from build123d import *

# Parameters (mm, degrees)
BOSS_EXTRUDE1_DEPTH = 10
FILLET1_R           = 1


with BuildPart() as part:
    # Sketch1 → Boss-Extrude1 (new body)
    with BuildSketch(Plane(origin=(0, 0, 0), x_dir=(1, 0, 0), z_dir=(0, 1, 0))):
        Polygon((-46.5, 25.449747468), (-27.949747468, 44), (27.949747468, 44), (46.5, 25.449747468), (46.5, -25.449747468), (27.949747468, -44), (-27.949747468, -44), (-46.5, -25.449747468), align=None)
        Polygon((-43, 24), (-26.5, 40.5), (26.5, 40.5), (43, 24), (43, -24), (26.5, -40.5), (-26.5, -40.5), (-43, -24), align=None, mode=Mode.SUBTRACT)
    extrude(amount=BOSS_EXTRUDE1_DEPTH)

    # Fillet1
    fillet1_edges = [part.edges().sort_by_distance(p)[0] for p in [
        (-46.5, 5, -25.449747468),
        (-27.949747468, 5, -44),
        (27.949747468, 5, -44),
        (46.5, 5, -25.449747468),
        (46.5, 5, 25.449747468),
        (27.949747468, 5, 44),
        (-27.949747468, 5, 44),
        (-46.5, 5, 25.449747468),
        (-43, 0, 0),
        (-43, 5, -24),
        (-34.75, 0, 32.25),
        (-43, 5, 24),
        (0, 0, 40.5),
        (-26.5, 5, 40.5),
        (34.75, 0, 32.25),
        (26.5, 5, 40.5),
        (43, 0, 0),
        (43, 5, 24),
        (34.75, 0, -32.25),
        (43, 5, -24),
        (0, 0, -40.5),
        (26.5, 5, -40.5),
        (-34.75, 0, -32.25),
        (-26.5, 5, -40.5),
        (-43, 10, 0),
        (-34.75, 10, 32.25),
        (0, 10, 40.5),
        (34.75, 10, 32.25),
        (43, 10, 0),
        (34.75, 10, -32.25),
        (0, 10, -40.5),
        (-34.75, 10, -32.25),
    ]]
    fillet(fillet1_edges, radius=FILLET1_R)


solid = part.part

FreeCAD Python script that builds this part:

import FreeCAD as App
import Part
import Sketcher
Q = App.Units.Quantity


def edges_at(feature, points):
    """Names of the edges that pass closest to the given points."""
    edges = feature.Shape.Edges
    near = lambda p: min(range(len(edges)), key=lambda i: edges[i].distToShape(Part.Vertex(*p))[0])
    return sorted({f"Edge{near(p) + 1}" for p in points})


def add_polygon(sketch, points):
    """Adds a closed chain of lines whose ends are joined by coincident constraints."""
    first, n = sketch.GeometryCount, len(points)
    for a, b in zip(points, points[1:] + points[:1]):
        sketch.addGeometry(Part.LineSegment(App.Vector(*a, 0), App.Vector(*b, 0)), False)
    for i in range(n):
        sketch.addConstraint(Sketcher.Constraint("Coincident", first + i, 2, first + (i + 1) % n, 1))

doc = App.newDocument("Part")
body = doc.addObject("PartDesign::Body", "Body")

sketch1 = doc.addObject("Sketcher::SketchObject", "Sketch")
body.addObject(sketch1)
sketch1.AttachmentSupport = (doc.XZ_Plane, [""])
sketch1.MapMode = "FlatFace"
add_polygon(sketch1, [(-28, -44), (-46, -25), (-46, 25), (-28, 44), (28, 44), (46, 25), (46, -25), (28, -44)])
add_polygon(sketch1, [(-43, -24), (-26, -40), (26, -40), (43, -24), (43, 24), (26, 40), (-26, 40), (-43, 24)])
sketch1.addConstraint(Sketcher.Constraint("Vertical", 1))
sketch1.addConstraint(Sketcher.Constraint("Horizontal", 3))
sketch1.addConstraint(Sketcher.Constraint("Vertical", 5))
sketch1.addConstraint(Sketcher.Constraint("Horizontal", 7))
sketch1.addConstraint(Sketcher.Constraint("Horizontal", 9))
sketch1.addConstraint(Sketcher.Constraint("Vertical", 11))
sketch1.addConstraint(Sketcher.Constraint("Horizontal", 13))
sketch1.addConstraint(Sketcher.Constraint("Vertical", 15))
sketch1.addConstraint(Sketcher.Constraint("Symmetric", 0, 2, 4, 2, -1, 1))
sketch1.addConstraint(Sketcher.Constraint("Symmetric", 2, 2, 6, 2, -1, 1))
sketch1.addConstraint(Sketcher.Constraint("Symmetric", 8, 2, 12, 2, -1, 1))
sketch1.addConstraint(Sketcher.Constraint("Symmetric", 10, 2, 14, 2, -1, 1))
sketch1.addConstraint(Sketcher.Constraint("Perpendicular", 0, 2))
sketch1.addConstraint(Sketcher.Constraint("Perpendicular", 2, 4))
sketch1.addConstraint(Sketcher.Constraint("Perpendicular", 4, 6))
sketch1.addConstraint(Sketcher.Constraint("Perpendicular", 6, 8))
sketch1.addConstraint(Sketcher.Constraint("Perpendicular", 8, 10))
sketch1.addConstraint(Sketcher.Constraint("Perpendicular", 10, 12))
sketch1.addConstraint(Sketcher.Constraint("Perpendicular", 12, 14))
sketch1.addConstraint(Sketcher.Constraint("Horizontal", 1, 2, 4, 2))
sketch1.addConstraint(Sketcher.Constraint("Horizontal", 11, 2, 14, 2))
sketch1.addConstraint(Sketcher.Constraint("Vertical", 3, 2, 6, 2))
sketch1.addConstraint(Sketcher.Constraint("DistanceX", 9, 1, 9, 2, Q("53 mm")))
sketch1.addConstraint(Sketcher.Constraint("DistanceY", 11, 1, 11, 2, Q("48 mm")))
sketch1.addConstraint(Sketcher.Constraint("DistanceY", -1, 1, 2, 2, Q("44 mm")))
sketch1.addConstraint(Sketcher.Constraint("DistanceX", -1, 1, 10, 2, Q("43 mm")))
sketch1.addConstraint(Sketcher.Constraint("DistanceX", 1, 2, 4, 2, Q("93 mm")))
sketch1.addConstraint(Sketcher.Constraint("Distance", 0, Q("26.234019 mm")))
pad1 = doc.addObject("PartDesign::Pad", "Pad")
body.addObject(pad1)
pad1.Profile = sketch1
pad1.Length = 10
pad1.Reversed = True
doc.recompute()

fillet = doc.addObject("PartDesign::Fillet", "Fillet")
body.addObject(fillet)
fillet.Base = (pad1, edges_at(pad1, [
    (-46.5, 5, -25.45),
    (-27.95, 5, -44),
    (27.95, 5, -44),
    (46.5, 5, -25.45),
    (46.5, 5, 25.45),
    (27.95, 5, 44),
    (-27.95, 5, 44),
    (-46.5, 5, 25.45),
    (-43, 0, 0),
    (-43, 5, -24),
    (-34.75, 0, 32.25),
    (-43, 5, 24),
    (0, 0, 40.5),
    (-26.5, 5, 40.5),
    (34.75, 0, 32.25),
    (26.5, 5, 40.5),
    (43, 0, 0),
    (43, 5, 24),
    (34.75, 0, -32.25),
    (43, 5, -24),
    (0, 0, -40.5),
    (26.5, 5, -40.5),
    (-34.75, 0, -32.25),
    (-26.5, 5, -40.5),
    (-43, 10, 0),
    (-34.75, 10, 32.25),
    (0, 10, 40.5),
    (34.75, 10, 32.25),
    (43, 10, 0),
    (34.75, 10, -32.25),
    (0, 10, -40.5),
    (-34.75, 10, -32.25),
]))
fillet.Radius = 1

doc.recompute()
